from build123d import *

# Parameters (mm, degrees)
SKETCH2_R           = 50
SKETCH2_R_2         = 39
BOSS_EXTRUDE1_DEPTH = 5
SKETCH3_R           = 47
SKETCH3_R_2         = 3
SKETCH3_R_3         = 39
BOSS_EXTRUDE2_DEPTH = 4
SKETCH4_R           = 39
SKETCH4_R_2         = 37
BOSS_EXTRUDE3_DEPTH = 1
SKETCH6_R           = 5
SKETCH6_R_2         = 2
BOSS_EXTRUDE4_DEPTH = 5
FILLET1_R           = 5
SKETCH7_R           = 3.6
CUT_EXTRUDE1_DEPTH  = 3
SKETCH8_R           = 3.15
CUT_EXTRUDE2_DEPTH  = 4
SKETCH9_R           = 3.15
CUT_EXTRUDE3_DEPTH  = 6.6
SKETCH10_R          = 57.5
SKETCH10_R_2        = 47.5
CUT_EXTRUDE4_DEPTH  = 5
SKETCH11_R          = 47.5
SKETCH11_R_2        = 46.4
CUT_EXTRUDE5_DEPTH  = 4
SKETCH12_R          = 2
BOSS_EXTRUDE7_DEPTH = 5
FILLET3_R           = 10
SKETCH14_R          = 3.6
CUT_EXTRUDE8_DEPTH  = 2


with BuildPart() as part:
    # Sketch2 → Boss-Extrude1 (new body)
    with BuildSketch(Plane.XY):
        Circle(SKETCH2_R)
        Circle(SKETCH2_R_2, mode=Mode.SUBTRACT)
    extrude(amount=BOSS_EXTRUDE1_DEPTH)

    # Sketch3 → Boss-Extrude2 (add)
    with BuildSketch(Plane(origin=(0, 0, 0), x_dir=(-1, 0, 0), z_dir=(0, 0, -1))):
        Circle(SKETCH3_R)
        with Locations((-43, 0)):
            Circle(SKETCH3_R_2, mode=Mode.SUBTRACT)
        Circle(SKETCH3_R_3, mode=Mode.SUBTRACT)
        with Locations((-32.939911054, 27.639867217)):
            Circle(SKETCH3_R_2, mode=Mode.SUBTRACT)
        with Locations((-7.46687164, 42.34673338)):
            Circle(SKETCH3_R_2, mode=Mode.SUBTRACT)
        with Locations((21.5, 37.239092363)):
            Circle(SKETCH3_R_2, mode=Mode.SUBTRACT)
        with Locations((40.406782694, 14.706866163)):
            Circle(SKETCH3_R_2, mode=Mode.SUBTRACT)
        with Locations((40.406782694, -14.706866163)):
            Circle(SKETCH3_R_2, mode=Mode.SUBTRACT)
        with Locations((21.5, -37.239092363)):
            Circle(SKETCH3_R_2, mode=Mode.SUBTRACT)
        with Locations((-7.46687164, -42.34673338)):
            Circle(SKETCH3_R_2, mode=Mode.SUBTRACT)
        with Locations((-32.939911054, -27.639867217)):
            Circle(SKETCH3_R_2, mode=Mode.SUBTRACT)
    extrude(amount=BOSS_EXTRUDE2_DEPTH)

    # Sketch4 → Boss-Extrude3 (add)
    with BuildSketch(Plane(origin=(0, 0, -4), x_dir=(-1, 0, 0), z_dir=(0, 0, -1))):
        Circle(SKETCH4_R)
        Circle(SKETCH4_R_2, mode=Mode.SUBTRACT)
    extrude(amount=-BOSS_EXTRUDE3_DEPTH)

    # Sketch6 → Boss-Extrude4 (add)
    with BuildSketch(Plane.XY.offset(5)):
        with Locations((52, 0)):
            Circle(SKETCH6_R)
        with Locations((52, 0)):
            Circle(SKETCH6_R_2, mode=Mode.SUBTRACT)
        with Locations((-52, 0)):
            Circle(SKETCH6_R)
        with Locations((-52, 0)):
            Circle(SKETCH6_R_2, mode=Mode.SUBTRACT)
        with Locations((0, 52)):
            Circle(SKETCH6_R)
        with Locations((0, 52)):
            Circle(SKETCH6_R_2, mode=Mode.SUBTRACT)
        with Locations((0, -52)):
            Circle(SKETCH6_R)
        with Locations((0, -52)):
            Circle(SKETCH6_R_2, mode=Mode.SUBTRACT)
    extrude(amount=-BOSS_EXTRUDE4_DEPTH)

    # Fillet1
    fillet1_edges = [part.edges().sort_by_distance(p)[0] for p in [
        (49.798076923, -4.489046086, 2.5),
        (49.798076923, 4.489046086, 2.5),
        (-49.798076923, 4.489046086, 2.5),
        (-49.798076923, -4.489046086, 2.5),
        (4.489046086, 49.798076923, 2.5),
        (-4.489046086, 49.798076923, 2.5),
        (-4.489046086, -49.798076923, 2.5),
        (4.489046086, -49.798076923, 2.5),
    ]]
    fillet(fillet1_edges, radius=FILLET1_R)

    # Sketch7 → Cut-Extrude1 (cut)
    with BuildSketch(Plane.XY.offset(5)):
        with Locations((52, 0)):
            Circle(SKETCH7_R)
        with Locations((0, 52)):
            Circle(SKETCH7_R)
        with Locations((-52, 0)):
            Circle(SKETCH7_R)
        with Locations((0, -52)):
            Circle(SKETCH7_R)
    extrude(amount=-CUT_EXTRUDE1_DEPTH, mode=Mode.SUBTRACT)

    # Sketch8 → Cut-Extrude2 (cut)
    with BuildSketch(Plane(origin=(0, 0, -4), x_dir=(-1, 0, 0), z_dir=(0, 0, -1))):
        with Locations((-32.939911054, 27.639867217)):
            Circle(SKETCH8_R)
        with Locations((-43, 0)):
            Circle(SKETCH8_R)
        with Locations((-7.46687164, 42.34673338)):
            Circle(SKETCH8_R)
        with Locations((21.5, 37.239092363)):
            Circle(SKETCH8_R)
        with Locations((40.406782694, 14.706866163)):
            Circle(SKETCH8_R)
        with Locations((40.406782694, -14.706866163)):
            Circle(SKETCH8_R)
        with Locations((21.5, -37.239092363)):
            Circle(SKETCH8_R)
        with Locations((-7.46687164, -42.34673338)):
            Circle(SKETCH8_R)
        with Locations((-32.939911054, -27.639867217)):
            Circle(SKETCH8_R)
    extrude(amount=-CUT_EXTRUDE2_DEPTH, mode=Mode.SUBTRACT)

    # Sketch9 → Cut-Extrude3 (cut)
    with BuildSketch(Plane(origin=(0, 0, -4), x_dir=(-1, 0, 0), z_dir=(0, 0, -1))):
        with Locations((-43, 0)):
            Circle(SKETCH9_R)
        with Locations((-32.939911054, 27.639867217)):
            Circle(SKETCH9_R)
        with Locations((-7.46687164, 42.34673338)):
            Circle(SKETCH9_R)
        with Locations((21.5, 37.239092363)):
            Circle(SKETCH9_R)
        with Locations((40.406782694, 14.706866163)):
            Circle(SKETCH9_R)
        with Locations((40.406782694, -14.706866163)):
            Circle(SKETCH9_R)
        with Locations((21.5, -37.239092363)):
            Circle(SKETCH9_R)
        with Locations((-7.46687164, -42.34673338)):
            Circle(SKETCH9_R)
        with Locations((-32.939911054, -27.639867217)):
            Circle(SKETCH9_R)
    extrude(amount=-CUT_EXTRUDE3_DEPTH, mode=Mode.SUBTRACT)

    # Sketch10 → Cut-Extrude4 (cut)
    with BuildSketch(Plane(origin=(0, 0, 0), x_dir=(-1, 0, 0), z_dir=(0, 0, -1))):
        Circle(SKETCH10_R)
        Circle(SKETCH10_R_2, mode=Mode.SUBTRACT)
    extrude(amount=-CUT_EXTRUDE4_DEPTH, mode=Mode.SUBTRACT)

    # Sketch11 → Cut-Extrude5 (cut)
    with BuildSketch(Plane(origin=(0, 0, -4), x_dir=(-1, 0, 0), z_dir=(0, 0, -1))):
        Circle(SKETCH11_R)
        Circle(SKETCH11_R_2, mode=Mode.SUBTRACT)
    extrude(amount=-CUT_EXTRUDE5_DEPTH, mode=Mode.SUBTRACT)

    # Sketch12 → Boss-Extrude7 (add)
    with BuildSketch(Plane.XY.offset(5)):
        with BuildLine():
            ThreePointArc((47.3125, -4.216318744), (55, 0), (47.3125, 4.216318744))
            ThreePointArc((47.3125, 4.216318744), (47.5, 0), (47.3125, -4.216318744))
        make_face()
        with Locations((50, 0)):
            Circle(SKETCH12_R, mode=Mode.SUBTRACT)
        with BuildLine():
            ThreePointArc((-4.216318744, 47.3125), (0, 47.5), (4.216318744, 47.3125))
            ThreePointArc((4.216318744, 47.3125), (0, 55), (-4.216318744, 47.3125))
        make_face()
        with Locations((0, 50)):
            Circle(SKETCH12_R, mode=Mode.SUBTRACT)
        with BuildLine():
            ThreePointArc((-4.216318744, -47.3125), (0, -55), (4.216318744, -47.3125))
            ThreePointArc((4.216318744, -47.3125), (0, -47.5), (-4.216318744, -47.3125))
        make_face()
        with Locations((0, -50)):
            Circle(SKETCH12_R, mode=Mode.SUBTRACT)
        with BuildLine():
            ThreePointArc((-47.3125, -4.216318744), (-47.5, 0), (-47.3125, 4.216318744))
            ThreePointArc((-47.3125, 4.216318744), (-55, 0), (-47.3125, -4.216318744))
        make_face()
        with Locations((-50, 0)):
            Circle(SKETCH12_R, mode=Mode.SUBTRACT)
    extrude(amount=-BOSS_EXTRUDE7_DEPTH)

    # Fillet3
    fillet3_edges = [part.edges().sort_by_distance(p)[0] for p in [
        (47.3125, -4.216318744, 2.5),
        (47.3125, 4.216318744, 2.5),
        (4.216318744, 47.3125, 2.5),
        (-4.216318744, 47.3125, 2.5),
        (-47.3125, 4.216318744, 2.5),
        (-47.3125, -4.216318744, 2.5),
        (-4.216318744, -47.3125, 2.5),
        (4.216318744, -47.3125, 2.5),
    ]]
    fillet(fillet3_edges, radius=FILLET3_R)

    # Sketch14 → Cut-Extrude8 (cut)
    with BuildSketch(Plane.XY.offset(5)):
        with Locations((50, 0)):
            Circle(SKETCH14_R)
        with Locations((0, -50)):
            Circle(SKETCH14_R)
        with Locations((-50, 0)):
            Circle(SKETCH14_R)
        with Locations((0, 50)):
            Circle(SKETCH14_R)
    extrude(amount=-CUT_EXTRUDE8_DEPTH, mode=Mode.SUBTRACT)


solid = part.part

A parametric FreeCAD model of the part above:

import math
import FreeCAD as App
import Part
import Sketcher

V = App.Vector


def edges_at(feature, points):
    """Names of the edges that pass closest to the given points."""
    edges = feature.Shape.Edges
    near = lambda p: min(range(len(edges)), key=lambda i: edges[i].distToShape(Part.Vertex(*p))[0])
    return sorted({f"Edge{near(p) + 1}" for p in points})

doc = App.newDocument("Part")
body = doc.addObject("PartDesign::Body", "Body")

sketch1 = body.newObject("Sketcher::SketchObject", "Sketch")
sketch1.AttachmentSupport = (doc.getObject("XY_Plane"), [""])
sketch1.MapMode = "FlatFace"
sketch1.addGeometry(Part.Circle(V(0, 0, 0), V(0, 0, 1), 50), False)
sketch1.addGeometry(Part.Circle(V(0, 0, 0), V(0, 0, 1), 39), False)
sketch1.addConstraint(Sketcher.Constraint("Coincident", 0, 3, -1, 1))
sketch1.addConstraint(Sketcher.Constraint("Coincident", 1, 3, -1, 1))
sketch1.addConstraint(Sketcher.Constraint("Diameter", 0, 100.0))
sketch1.addConstraint(Sketcher.Constraint("Diameter", 1, 78.0))
pad1 = body.newObject("PartDesign::Pad", "Pad")
pad1.Profile = sketch1
pad1.Length = 5

sketch2 = body.newObject("Sketcher::SketchObject", "Sketch001")
sketch2.AttachmentSupport = (doc.getObject("XY_Plane"), [""])
sketch2.MapMode = "FlatFace"
sketch2.addGeometry(Part.Circle(V(0, 0, 0), V(0, 0, 1), 47), False)
sketch2.addGeometry(Part.Circle(V(32.939911, -27.639867, 0), V(0, 0, 1), 3), False)
sketch2.addGeometry(Part.Circle(V(7.466872, -42.346733, 0), V(0, 0, 1), 3), False)
sketch2.addGeometry(Part.Circle(V(-21.5, -37.239092, 0), V(0, 0, 1), 3), False)
sketch2.addGeometry(Part.Circle(V(-40.406783, -14.706866, 0), V(0, 0, 1), 3), False)
sketch2.addGeometry(Part.Circle(V(43, 0, 0), V(0, 0, 1), 3), False)
sketch2.addGeometry(Part.Circle(V(32.939911, 27.639867, 0), V(0, 0, 1), 3), False)
sketch2.addGeometry(Part.Circle(V(7.466872, 42.346733, 0), V(0, 0, 1), 3), False)
sketch2.addGeometry(Part.Circle(V(0, 0, 0), V(0, 0, 1), 39), False)
sketch2.addGeometry(Part.Circle(V(-40.406783, 14.706866, 0), V(0, 0, 1), 3), False)
sketch2.addGeometry(Part.Circle(V(-21.5, 37.239092, 0), V(0, 0, 1), 3), False)
sketch2.addConstraint(Sketcher.Constraint("Coincident", 0, 3, -1, 1))
sketch2.addConstraint(Sketcher.Constraint("Coincident", 8, 3, -1, 1))
sketch2.addConstraint(Sketcher.Constraint("Equal", 1, 2))
sketch2.addConstraint(Sketcher.Constraint("Equal", 2, 3))
sketch2.addConstraint(Sketcher.Constraint("Equal", 3, 4))
sketch2.addConstraint(Sketcher.Constraint("Equal", 4, 5))
sketch2.addConstraint(Sketcher.Constraint("Equal", 5, 6))
sketch2.addConstraint(Sketcher.Constraint("Equal", 6, 7))
sketch2.addConstraint(Sketcher.Constraint("Equal", 7, 9))
sketch2.addConstraint(Sketcher.Constraint("Equal", 9, 10))
sketch2.addConstraint(Sketcher.Constraint("Symmetric", 1, 3, 6, 3, -1))
sketch2.addConstraint(Sketcher.Constraint("Symmetric", 2, 3, 7, 3, -1))
sketch2.addConstraint(Sketcher.Constraint("Symmetric", 4, 3, 9, 3, -1))
sketch2.addConstraint(Sketcher.Constraint("Symmetric", 3, 3, 10, 3, -1))
sketch2.addConstraint(Sketcher.Constraint("PointOnObject", 5, 3, -1))
sketch2.addConstraint(Sketcher.Constraint("Diameter", 0, 94.0))
sketch2.addConstraint(Sketcher.Constraint("Diameter", 1, 6.0))
sketch2.addConstraint(Sketcher.Constraint("Diameter", 8, 78.0))
sketch2.addConstraint(Sketcher.Constraint("DistanceX", -1, 1, 5, 3, 43.0))
sketch2.addConstraint(Sketcher.Constraint("DistanceX", 3, 3, -1, 1, 21.5))
sketch2.addConstraint(Sketcher.Constraint("DistanceY", 1, 3, 4, 3, 12.933001))
sketch2.addConstraint(Sketcher.Constraint("DistanceY", 2, 3, 6, 3, 69.986601))
sketch2.addConstraint(Sketcher.Constraint("DistanceX", -1, 1, 1, 3, 32.939911))
sketch2.addConstraint(Sketcher.Constraint("DistanceX", -1, 1, 2, 3, 7.466872))
sketch2.addConstraint(Sketcher.Constraint("DistanceY", 2, 3, 3, 3, 5.107641))
sketch2.addConstraint(Sketcher.Constraint("DistanceY", 1, 3, -1, 1, 27.639867))
sketch2.addConstraint(Sketcher.Constraint("DistanceX", 4, 3, -1, 1, 40.406783))
pad2 = body.newObject("PartDesign::Pad", "Pad001")
pad2.Profile = sketch2
pad2.Length = 4
pad2.Reversed = True

sketch3 = body.newObject("Sketcher::SketchObject", "Sketch002")
sketch3.AttachmentSupport = (doc.getObject("XY_Plane"), [""])
sketch3.MapMode = "FlatFace"
sketch3.AttachmentOffset = App.Placement(V(0, 0, -4), App.Rotation())
sketch3.addGeometry(Part.Circle(V(0, 0, 0), V(0, 0, 1), 39), False)
sketch3.addGeometry(Part.Circle(V(0, 0, 0), V(0, 0, 1), 37), False)
sketch3.addConstraint(Sketcher.Constraint("Coincident", 0, 3, -1, 1))
sketch3.addConstraint(Sketcher.Constraint("Coincident", 1, 3, -1, 1))
sketch3.addConstraint(Sketcher.Constraint("Diameter", 0, 78.0))
sketch3.addConstraint(Sketcher.Constraint("Diameter", 1, 74.0))
pad3 = body.newObject("PartDesign::Pad", "Pad002")
pad3.Profile = sketch3
pad3.Length = 1

sketch4 = body.newObject("Sketcher::SketchObject", "Sketch003")
sketch4.AttachmentSupport = (doc.getObject("XY_Plane"), [""])
sketch4.MapMode = "FlatFace"
sketch4.AttachmentOffset = App.Placement(V(0, 0, 5), App.Rotation())
sketch4.addGeometry(Part.Circle(V(52, 0, 0), V(0, 0, 1), 5), False)
sketch4.addGeometry(Part.Circle(V(52, 0, 0), V(0, 0, 1), 2), False)
sketch4.addGeometry(Part.Circle(V(-52, 0, 0), V(0, 0, 1), 5), False)
sketch4.addGeometry(Part.Circle(V(-52, 0, 0), V(0, 0, 1), 2), False)
sketch4.addGeometry(Part.Circle(V(0, 52, 0), V(0, 0, 1), 5), False)
sketch4.addGeometry(Part.Circle(V(0, 52, 0), V(0, 0, 1), 2), False)
sketch4.addGeometry(Part.Circle(V(0, -52, 0), V(0, 0, 1), 5), False)
sketch4.addGeometry(Part.Circle(V(0, -52, 0), V(0, 0, 1), 2), False)
sketch4.addConstraint(Sketcher.Constraint("Coincident", 1, 3, 0, 3))
sketch4.addConstraint(Sketcher.Constraint("Coincident", 3, 3, 2, 3))
sketch4.addConstraint(Sketcher.Constraint("Coincident", 5, 3, 4, 3))
sketch4.addConstraint(Sketcher.Constraint("Coincident", 7, 3, 6, 3))
sketch4.addConstraint(Sketcher.Constraint("Equal", 0, 2))
sketch4.addConstraint(Sketcher.Constraint("Equal", 1, 3))
sketch4.addConstraint(Sketcher.Constraint("Equal", 2, 4))
sketch4.addConstraint(Sketcher.Constraint("Equal", 3, 5))
sketch4.addConstraint(Sketcher.Constraint("Equal", 4, 6))
sketch4.addConstraint(Sketcher.Constraint("Equal", 5, 7))
sketch4.addConstraint(Sketcher.Constraint("Symmetric", 0, 3, 2, 3, -1, 1))
sketch4.addConstraint(Sketcher.Constraint("Symmetric", 4, 3, 6, 3, -1, 1))
sketch4.addConstraint(Sketcher.Constraint("PointOnObject", 0, 3, -1))
sketch4.addConstraint(Sketcher.Constraint("PointOnObject", 4, 3, -2))
sketch4.addConstraint(Sketcher.Constraint("Diameter", 0, 10.0))
sketch4.addConstraint(Sketcher.Constraint("Diameter", 1, 4.0))
sketch4.addConstraint(Sketcher.Constraint("DistanceX", -1, 1, 0, 3, 52.0))
sketch4.addConstraint(Sketcher.Constraint("DistanceY", -1, 1, 4, 3, 52.0))
pad4 = body.newObject("PartDesign::Pad", "Pad003")
pad4.Profile = sketch4
pad4.Length = 5
pad4.Reversed = True
doc.recompute()

fillet = body.newObject("PartDesign::Fillet", "Fillet")
fillet.Base = (pad4, edges_at(pad4, [
    (49.798, -4.489, 2.5),
    (49.798, 4.489, 2.5),
    (-49.798, 4.489, 2.5),
    (-49.798, -4.489, 2.5),
    (4.489, 49.798, 2.5),
    (-4.489, 49.798, 2.5),
    (-4.489, -49.798, 2.5),
    (4.489, -49.798, 2.5),
]))
fillet.Radius = 5

sketch5 = body.newObject("Sketcher::SketchObject", "Sketch004")
sketch5.AttachmentSupport = (doc.getObject("XY_Plane"), [""])
sketch5.MapMode = "FlatFace"
sketch5.AttachmentOffset = App.Placement(V(0, 0, 5), App.Rotation())
sketch5.addGeometry(Part.Circle(V(52, 0, 0), V(0, 0, 1), 3.6), False)
sketch5.addGeometry(Part.Circle(V(0, 52, 0), V(0, 0, 1), 3.6), False)
sketch5.addGeometry(Part.Circle(V(-52, 0, 0), V(0, 0, 1), 3.6), False)
sketch5.addGeometry(Part.Circle(V(0, -52, 0), V(0, 0, 1), 3.6), False)
sketch5.addConstraint(Sketcher.Constraint("Equal", 0, 1))
sketch5.addConstraint(Sketcher.Constraint("Equal", 1, 2))
sketch5.addConstraint(Sketcher.Constraint("Equal", 2, 3))
sketch5.addConstraint(Sketcher.Constraint("Symmetric", 0, 3, 2, 3, -1, 1))
sketch5.addConstraint(Sketcher.Constraint("Symmetric", 1, 3, 3, 3, -1, 1))
sketch5.addConstraint(Sketcher.Constraint("PointOnObject", 0, 3, -1))
sketch5.addConstraint(Sketcher.Constraint("PointOnObject", 1, 3, -2))
sketch5.addConstraint(Sketcher.Constraint("Diameter", 0, 7.2))
sketch5.addConstraint(Sketcher.Constraint("DistanceX", -1, 1, 0, 3, 52.0))
sketch5.addConstraint(Sketcher.Constraint("DistanceY", -1, 1, 1, 3, 52.0))
pocket1 = body.newObject("PartDesign::Pocket", "Pocket")
pocket1.Profile = sketch5
pocket1.Length = 3

sketch6 = body.newObject("Sketcher::SketchObject", "Sketch005")
sketch6.AttachmentSupport = (doc.getObject("XY_Plane"), [""])
sketch6.MapMode = "FlatFace"
sketch6.AttachmentOffset = App.Placement(V(0, 0, -4), App.Rotation())
sketch6.addGeometry(Part.Circle(V(32.939911, 27.639867, 0), V(0, 0, 1), 3.15), False)
sketch6.addGeometry(Part.Circle(V(43, 0, 0), V(0, 0, 1), 3.15), False)
sketch6.addGeometry(Part.Circle(V(7.466872, 42.346733, 0), V(0, 0, 1), 3.15), False)
sketch6.addGeometry(Part.Circle(V(-21.5, 37.239092, 0), V(0, 0, 1), 3.15), False)
sketch6.addGeometry(Part.Circle(V(-40.406783, 14.706866, 0), V(0, 0, 1), 3.15), False)
sketch6.addGeometry(Part.Circle(V(-40.406783, -14.706866, 0), V(0, 0, 1), 3.15), False)
sketch6.addGeometry(Part.Circle(V(-21.5, -37.239092, 0), V(0, 0, 1), 3.15), False)
sketch6.addGeometry(Part.Circle(V(7.466872, -42.346733, 0), V(0, 0, 1), 3.15), False)
sketch6.addGeometry(Part.Circle(V(32.939911, -27.639867, 0), V(0, 0, 1), 3.15), False)
sketch6.addConstraint(Sketcher.Constraint("Equal", 0, 1))
sketch6.addConstraint(Sketcher.Constraint("Equal", 1, 2))
sketch6.addConstraint(Sketcher.Constraint("Equal", 2, 3))
sketch6.addConstraint(Sketcher.Constraint("Equal", 3, 4))
sketch6.addConstraint(Sketcher.Constraint("Equal", 4, 5))
sketch6.addConstraint(Sketcher.Constraint("Equal", 5, 6))
sketch6.addConstraint(Sketcher.Constraint("Equal", 6, 7))
sketch6.addConstraint(Sketcher.Constraint("Equal", 7, 8))
sketch6.addConstraint(Sketcher.Constraint("Symmetric", 4, 3, 5, 3, -1))
sketch6.addConstraint(Sketcher.Constraint("Symmetric", 3, 3, 6, 3, -1))
sketch6.addConstraint(Sketcher.Constraint("Symmetric", 2, 3, 7, 3, -1))
sketch6.addConstraint(Sketcher.Constraint("Symmetric", 0, 3, 8, 3, -1))
sketch6.addConstraint(Sketcher.Constraint("PointOnObject", 1, 3, -1))
sketch6.addConstraint(Sketcher.Constraint("Diameter", 0, 6.3))
sketch6.addConstraint(Sketcher.Constraint("DistanceX", -1, 1, 1, 3, 43.0))
sketch6.addConstraint(Sketcher.Constraint("DistanceX", 3, 3, -1, 1, 21.5))
sketch6.addConstraint(Sketcher.Constraint("DistanceY", 4, 3, 0, 3, 12.933001))
sketch6.addConstraint(Sketcher.Constraint("DistanceY", 5, 3, 2, 3, 57.0536))
sketch6.addConstraint(Sketcher.Constraint("DistanceX", -1, 1, 0, 3, 32.939911))
sketch6.addConstraint(Sketcher.Constraint("DistanceX", -1, 1, 2, 3, 7.466872))
sketch6.addConstraint(Sketcher.Constraint("DistanceY", 3, 3, 2, 3, 5.107641))
sketch6.addConstraint(Sketcher.Constraint("DistanceY", -1, 1, 0, 3, 27.639867))
sketch6.addConstraint(Sketcher.Constraint("DistanceX", 4, 3, -1, 1, 40.406783))
pocket2 = body.newObject("PartDesign::Pocket", "Pocket001")
pocket2.Profile = sketch6
pocket2.Length = 4
pocket2.Reversed = True

sketch7 = body.newObject("Sketcher::SketchObject", "Sketch006")
sketch7.AttachmentSupport = (doc.getObject("XY_Plane"), [""])
sketch7.MapMode = "FlatFace"
sketch7.AttachmentOffset = App.Placement(V(0, 0, -4), App.Rotation())
sketch7.addGeometry(Part.Circle(V(43, 0, 0), V(0, 0, 1), 3.15), False)
sketch7.addGeometry(Part.Circle(V(32.939911, 27.639867, 0), V(0, 0, 1), 3.15), False)
sketch7.addGeometry(Part.Circle(V(7.466872, 42.346733, 0), V(0, 0, 1), 3.15), False)
sketch7.addGeometry(Part.Circle(V(-21.5, 37.239092, 0), V(0, 0, 1), 3.15), False)
sketch7.addGeometry(Part.Circle(V(-40.406783, 14.706866, 0), V(0, 0, 1), 3.15), False)
sketch7.addGeometry(Part.Circle(V(-40.406783, -14.706866, 0), V(0, 0, 1), 3.15), False)
sketch7.addGeometry(Part.Circle(V(-21.5, -37.239092, 0), V(0, 0, 1), 3.15), False)
sketch7.addGeometry(Part.Circle(V(7.466872, -42.346733, 0), V(0, 0, 1), 3.15), False)
sketch7.addGeometry(Part.Circle(V(32.939911, -27.639867, 0), V(0, 0, 1), 3.15), False)
sketch7.addConstraint(Sketcher.Constraint("Equal", 0, 1))
sketch7.addConstraint(Sketcher.Constraint("Equal", 1, 2))
sketch7.addConstraint(Sketcher.Constraint("Equal", 2, 3))
sketch7.addConstraint(Sketcher.Constraint("Equal", 3, 4))
sketch7.addConstraint(Sketcher.Constraint("Equal", 4, 5))
sketch7.addConstraint(Sketcher.Constraint("Equal", 5, 6))
sketch7.addConstraint(Sketcher.Constraint("Equal", 6, 7))
sketch7.addConstraint(Sketcher.Constraint("Equal", 7, 8))
sketch7.addConstraint(Sketcher.Constraint("Symmetric", 4, 3, 5, 3, -1))
sketch7.addConstraint(Sketcher.Constraint("Symmetric", 3, 3, 6, 3, -1))
sketch7.addConstraint(Sketcher.Constraint("Symmetric", 2, 3, 7, 3, -1))
sketch7.addConstraint(Sketcher.Constraint("Symmetric", 1, 3, 8, 3, -1))
sketch7.addConstraint(Sketcher.Constraint("PointOnObject", 0, 3, -1))
sketch7.addConstraint(Sketcher.Constraint("Diameter", 0, 6.3))
sketch7.addConstraint(Sketcher.Constraint("DistanceX", -1, 1, 0, 3, 43.0))
sketch7.addConstraint(Sketcher.Constraint("DistanceX", 3, 3, -1, 1, 21.5))
sketch7.addConstraint(Sketcher.Constraint("DistanceY", 4, 3, 1, 3, 12.933001))
sketch7.addConstraint(Sketcher.Constraint("DistanceY", 5, 3, 2, 3, 57.0536))
sketch7.addConstraint(Sketcher.Constraint("DistanceX", -1, 1, 1, 3, 32.939911))
sketch7.addConstraint(Sketcher.Constraint("DistanceX", -1, 1, 2, 3, 7.466872))
sketch7.addConstraint(Sketcher.Constraint("DistanceY", 3, 3, 2, 3, 5.107641))
sketch7.addConstraint(Sketcher.Constraint("DistanceY", -1, 1, 1, 3, 27.639867))
sketch7.addConstraint(Sketcher.Constraint("DistanceX", 4, 3, -1, 1, 40.406783))
pocket3 = body.newObject("PartDesign::Pocket", "Pocket002")
pocket3.Profile = sketch7
pocket3.Length = 6.6
pocket3.Reversed = True

sketch8 = body.newObject("Sketcher::SketchObject", "Sketch007")
sketch8.AttachmentSupport = (doc.getObject("XY_Plane"), [""])
sketch8.MapMode = "FlatFace"
sketch8.addGeometry(Part.Circle(V(0, 0, 0), V(0, 0, 1), 57.5), False)
sketch8.addGeometry(Part.Circle(V(0, 0, 0), V(0, 0, 1), 47.5), False)
sketch8.addConstraint(Sketcher.Constraint("Coincident", 0, 3, -1, 1))
sketch8.addConstraint(Sketcher.Constraint("Coincident", 1, 3, -1, 1))
sketch8.addConstraint(Sketcher.Constraint("Diameter", 0, 115.0))
sketch8.addConstraint(Sketcher.Constraint("Diameter", 1, 95.0))
pocket4 = body.newObject("PartDesign::Pocket", "Pocket003")
pocket4.Profile = sketch8
pocket4.Length = 5
pocket4.Reversed = True

sketch9 = body.newObject("Sketcher::SketchObject", "Sketch008")
sketch9.AttachmentSupport = (doc.getObject("XY_Plane"), [""])
sketch9.MapMode = "FlatFace"
sketch9.AttachmentOffset = App.Placement(V(0, 0, -4), App.Rotation())
sketch9.addGeometry(Part.Circle(V(0, 0, 0), V(0, 0, 1), 47.5), False)
sketch9.addGeometry(Part.Circle(V(0, 0, 0), V(0, 0, 1), 46.4), False)
sketch9.addConstraint(Sketcher.Constraint("Coincident", 0, 3, -1, 1))
sketch9.addConstraint(Sketcher.Constraint("Coincident", 1, 3, -1, 1))
sketch9.addConstraint(Sketcher.Constraint("Diameter", 0, 95.0))
sketch9.addConstraint(Sketcher.Constraint("Diameter", 1, 92.8))
pocket5 = body.newObject("PartDesign::Pocket", "Pocket004")
pocket5.Profile = sketch9
pocket5.Length = 4
pocket5.Reversed = True

sketch10 = body.newObject("Sketcher::SketchObject", "Sketch009")
sketch10.AttachmentSupport = (doc.getObject("XY_Plane"), [""])
sketch10.MapMode = "FlatFace"
sketch10.AttachmentOffset = App.Placement(V(0, 0, 5), App.Rotation())
sketch10.addGeometry(Part.ArcOfCircle(Part.Circle(V(50, 0, 0), V(0, 0, 1), 5), math.radians(-122.513615), math.radians(122.513615)), False)
sketch10.addGeometry(Part.ArcOfCircle(Part.Circle(V(0, 0, 0), V(0, 0, 1), 47.5), math.radians(-5.09254), math.radians(5.09254)), False)
sketch10.addGeometry(Part.Circle(V(50, 0, 0), V(0, 0, 1), 2), False)
sketch10.addGeometry(Part.ArcOfCircle(Part.Circle(V(0, 0, 0), V(0, 0, 1), 47.5), math.radians(84.90746), math.radians(95.09254)), False)
sketch10.addGeometry(Part.ArcOfCircle(Part.Circle(V(0, 50, 0), V(0, 0, 1), 5), math.radians(-32.513615), math.radians(212.513615)), False)
sketch10.addGeometry(Part.Circle(V(0, 50, 0), V(0, 0, 1), 2), False)
sketch10.addGeometry(Part.ArcOfCircle(Part.Circle(V(0, -50, 0), V(0, 0, 1), 5), math.radians(147.486385), math.radians(392.513615)), False)
sketch10.addGeometry(Part.ArcOfCircle(Part.Circle(V(0, 0, 0), V(0, 0, 1), 47.5), math.radians(-95.09254), math.radians(-84.90746)), False)
sketch10.addGeometry(Part.Circle(V(0, -50, 0), V(0, 0, 1), 2), False)
sketch10.addGeometry(Part.ArcOfCircle(Part.Circle(V(0, 0, 0), V(0, 0, 1), 47.5), math.radians(174.90746), math.radians(185.09254)), False)
sketch10.addGeometry(Part.ArcOfCircle(Part.Circle(V(-50, 0, 0), V(0, 0, 1), 5), math.radians(57.486385), math.radians(302.513615)), False)
sketch10.addGeometry(Part.Circle(V(-50, 0, 0), V(0, 0, 1), 2), False)
sketch10.addConstraint(Sketcher.Constraint("Coincident", 0, 1, 1, 1))
sketch10.addConstraint(Sketcher.Constraint("Coincident", 1, 2, 0, 2))
sketch10.addConstraint(Sketcher.Constraint("Coincident", 3, 1, 4, 1))
sketch10.addConstraint(Sketcher.Constraint("Coincident", 4, 2, 3, 2))
sketch10.addConstraint(Sketcher.Constraint("Coincident", 6, 1, 7, 1))
sketch10.addConstraint(Sketcher.Constraint("Coincident", 7, 2, 6, 2))
sketch10.addConstraint(Sketcher.Constraint("Coincident", 9, 1, 10, 1))
sketch10.addConstraint(Sketcher.Constraint("Coincident", 10, 2, 9, 2))
sketch10.addConstraint(Sketcher.Constraint("Coincident", 1, 3, -1, 1))
sketch10.addConstraint(Sketcher.Constraint("Coincident", 3, 3, -1, 1))
sketch10.addConstraint(Sketcher.Constraint("Coincident", 7, 3, -1, 1))
sketch10.addConstraint(Sketcher.Constraint("Coincident", 9, 3, -1, 1))
sketch10.addConstraint(Sketcher.Constraint("Coincident", 2, 3, 0, 3))
sketch10.addConstraint(Sketcher.Constraint("Coincident", 5, 3, 4, 3))
sketch10.addConstraint(Sketcher.Constraint("Coincident", 8, 3, 6, 3))
sketch10.addConstraint(Sketcher.Constraint("Coincident", 11, 3, 10, 3))
sketch10.addConstraint(Sketcher.Constraint("Equal", 1, 3))
sketch10.addConstraint(Sketcher.Constraint("Equal", 0, 4))
sketch10.addConstraint(Sketcher.Constraint("Equal", 2, 5))
sketch10.addConstraint(Sketcher.Constraint("Equal", 4, 6))
sketch10.addConstraint(Sketcher.Constraint("Equal", 3, 7))
sketch10.addConstraint(Sketcher.Constraint("Equal", 5, 8))
sketch10.addConstraint(Sketcher.Constraint("Equal", 7, 9))
sketch10.addConstraint(Sketcher.Constraint("Equal", 6, 10))
sketch10.addConstraint(Sketcher.Constraint("Equal", 8, 11))
sketch10.addConstraint(Sketcher.Constraint("Symmetric", 4, 3, 6, 3, -1, 1))
sketch10.addConstraint(Sketcher.Constraint("Symmetric", 0, 3, 10, 3, -1, 1))
sketch10.addConstraint(Sketcher.Constraint("PointOnObject", 0, 3, -1))
sketch10.addConstraint(Sketcher.Constraint("PointOnObject", 4, 3, -2))
sketch10.addConstraint(Sketcher.Constraint("Diameter", 2, 4.0))
sketch10.addConstraint(Sketcher.Constraint("Radius", 0, 5.0))
sketch10.addConstraint(Sketcher.Constraint("Radius", 1, 47.5))
sketch10.addConstraint(Sketcher.Constraint("DistanceX", -1, 1, 0, 3, 50.0))
sketch10.addConstraint(Sketcher.Constraint("DistanceY", -1, 1, 4, 3, 50.0))
pad5 = body.newObject("PartDesign::Pad", "Pad004")
pad5.Profile = sketch10
pad5.Length = 5
pad5.Reversed = True
doc.recompute()

fillet2 = body.newObject("PartDesign::Fillet", "Fillet001")
fillet2.Base = (pad5, edges_at(pad5, [
    (47.312, -4.216, 2.5),
    (47.312, 4.216, 2.5),
    (4.216, 47.312, 2.5),
    (-4.216, 47.312, 2.5),
    (-47.312, 4.216, 2.5),
    (-47.312, -4.216, 2.5),
    (-4.216, -47.312, 2.5),
    (4.216, -47.312, 2.5),
]))
fillet2.Radius = 10

sketch11 = body.newObject("Sketcher::SketchObject", "Sketch010")
sketch11.AttachmentSupport = (doc.getObject("XY_Plane"), [""])
sketch11.MapMode = "FlatFace"
sketch11.AttachmentOffset = App.Placement(V(0, 0, 5), App.Rotation())
sketch11.addGeometry(Part.Circle(V(50, 0, 0), V(0, 0, 1), 3.6), False)
sketch11.addGeometry(Part.Circle(V(0, -50, 0), V(0, 0, 1), 3.6), False)
sketch11.addGeometry(Part.Circle(V(-50, 0, 0), V(0, 0, 1), 3.6), False)
sketch11.addGeometry(Part.Circle(V(0, 50, 0), V(0, 0, 1), 3.6), False)
sketch11.addConstraint(Sketcher.Constraint("Equal", 0, 1))
sketch11.addConstraint(Sketcher.Constraint("Equal", 1, 2))
sketch11.addConstraint(Sketcher.Constraint("Equal", 2, 3))
sketch11.addConstraint(Sketcher.Constraint("Symmetric", 0, 3, 2, 3, -1, 1))
sketch11.addConstraint(Sketcher.Constraint("Symmetric", 1, 3, 3, 3, -1, 1))
sketch11.addConstraint(Sketcher.Constraint("PointOnObject", 0, 3, -1))
sketch11.addConstraint(Sketcher.Constraint("PointOnObject", 1, 3, -2))
sketch11.addConstraint(Sketcher.Constraint("Diameter", 0, 7.2))
sketch11.addConstraint(Sketcher.Constraint("DistanceX", -1, 1, 0, 3, 50.0))
sketch11.addConstraint(Sketcher.Constraint("DistanceY", 1, 3, -1, 1, 50.0))
pocket6 = body.newObject("PartDesign::Pocket", "Pocket005")
pocket6.Profile = sketch11
pocket6.Length = 2

doc.recompute()
